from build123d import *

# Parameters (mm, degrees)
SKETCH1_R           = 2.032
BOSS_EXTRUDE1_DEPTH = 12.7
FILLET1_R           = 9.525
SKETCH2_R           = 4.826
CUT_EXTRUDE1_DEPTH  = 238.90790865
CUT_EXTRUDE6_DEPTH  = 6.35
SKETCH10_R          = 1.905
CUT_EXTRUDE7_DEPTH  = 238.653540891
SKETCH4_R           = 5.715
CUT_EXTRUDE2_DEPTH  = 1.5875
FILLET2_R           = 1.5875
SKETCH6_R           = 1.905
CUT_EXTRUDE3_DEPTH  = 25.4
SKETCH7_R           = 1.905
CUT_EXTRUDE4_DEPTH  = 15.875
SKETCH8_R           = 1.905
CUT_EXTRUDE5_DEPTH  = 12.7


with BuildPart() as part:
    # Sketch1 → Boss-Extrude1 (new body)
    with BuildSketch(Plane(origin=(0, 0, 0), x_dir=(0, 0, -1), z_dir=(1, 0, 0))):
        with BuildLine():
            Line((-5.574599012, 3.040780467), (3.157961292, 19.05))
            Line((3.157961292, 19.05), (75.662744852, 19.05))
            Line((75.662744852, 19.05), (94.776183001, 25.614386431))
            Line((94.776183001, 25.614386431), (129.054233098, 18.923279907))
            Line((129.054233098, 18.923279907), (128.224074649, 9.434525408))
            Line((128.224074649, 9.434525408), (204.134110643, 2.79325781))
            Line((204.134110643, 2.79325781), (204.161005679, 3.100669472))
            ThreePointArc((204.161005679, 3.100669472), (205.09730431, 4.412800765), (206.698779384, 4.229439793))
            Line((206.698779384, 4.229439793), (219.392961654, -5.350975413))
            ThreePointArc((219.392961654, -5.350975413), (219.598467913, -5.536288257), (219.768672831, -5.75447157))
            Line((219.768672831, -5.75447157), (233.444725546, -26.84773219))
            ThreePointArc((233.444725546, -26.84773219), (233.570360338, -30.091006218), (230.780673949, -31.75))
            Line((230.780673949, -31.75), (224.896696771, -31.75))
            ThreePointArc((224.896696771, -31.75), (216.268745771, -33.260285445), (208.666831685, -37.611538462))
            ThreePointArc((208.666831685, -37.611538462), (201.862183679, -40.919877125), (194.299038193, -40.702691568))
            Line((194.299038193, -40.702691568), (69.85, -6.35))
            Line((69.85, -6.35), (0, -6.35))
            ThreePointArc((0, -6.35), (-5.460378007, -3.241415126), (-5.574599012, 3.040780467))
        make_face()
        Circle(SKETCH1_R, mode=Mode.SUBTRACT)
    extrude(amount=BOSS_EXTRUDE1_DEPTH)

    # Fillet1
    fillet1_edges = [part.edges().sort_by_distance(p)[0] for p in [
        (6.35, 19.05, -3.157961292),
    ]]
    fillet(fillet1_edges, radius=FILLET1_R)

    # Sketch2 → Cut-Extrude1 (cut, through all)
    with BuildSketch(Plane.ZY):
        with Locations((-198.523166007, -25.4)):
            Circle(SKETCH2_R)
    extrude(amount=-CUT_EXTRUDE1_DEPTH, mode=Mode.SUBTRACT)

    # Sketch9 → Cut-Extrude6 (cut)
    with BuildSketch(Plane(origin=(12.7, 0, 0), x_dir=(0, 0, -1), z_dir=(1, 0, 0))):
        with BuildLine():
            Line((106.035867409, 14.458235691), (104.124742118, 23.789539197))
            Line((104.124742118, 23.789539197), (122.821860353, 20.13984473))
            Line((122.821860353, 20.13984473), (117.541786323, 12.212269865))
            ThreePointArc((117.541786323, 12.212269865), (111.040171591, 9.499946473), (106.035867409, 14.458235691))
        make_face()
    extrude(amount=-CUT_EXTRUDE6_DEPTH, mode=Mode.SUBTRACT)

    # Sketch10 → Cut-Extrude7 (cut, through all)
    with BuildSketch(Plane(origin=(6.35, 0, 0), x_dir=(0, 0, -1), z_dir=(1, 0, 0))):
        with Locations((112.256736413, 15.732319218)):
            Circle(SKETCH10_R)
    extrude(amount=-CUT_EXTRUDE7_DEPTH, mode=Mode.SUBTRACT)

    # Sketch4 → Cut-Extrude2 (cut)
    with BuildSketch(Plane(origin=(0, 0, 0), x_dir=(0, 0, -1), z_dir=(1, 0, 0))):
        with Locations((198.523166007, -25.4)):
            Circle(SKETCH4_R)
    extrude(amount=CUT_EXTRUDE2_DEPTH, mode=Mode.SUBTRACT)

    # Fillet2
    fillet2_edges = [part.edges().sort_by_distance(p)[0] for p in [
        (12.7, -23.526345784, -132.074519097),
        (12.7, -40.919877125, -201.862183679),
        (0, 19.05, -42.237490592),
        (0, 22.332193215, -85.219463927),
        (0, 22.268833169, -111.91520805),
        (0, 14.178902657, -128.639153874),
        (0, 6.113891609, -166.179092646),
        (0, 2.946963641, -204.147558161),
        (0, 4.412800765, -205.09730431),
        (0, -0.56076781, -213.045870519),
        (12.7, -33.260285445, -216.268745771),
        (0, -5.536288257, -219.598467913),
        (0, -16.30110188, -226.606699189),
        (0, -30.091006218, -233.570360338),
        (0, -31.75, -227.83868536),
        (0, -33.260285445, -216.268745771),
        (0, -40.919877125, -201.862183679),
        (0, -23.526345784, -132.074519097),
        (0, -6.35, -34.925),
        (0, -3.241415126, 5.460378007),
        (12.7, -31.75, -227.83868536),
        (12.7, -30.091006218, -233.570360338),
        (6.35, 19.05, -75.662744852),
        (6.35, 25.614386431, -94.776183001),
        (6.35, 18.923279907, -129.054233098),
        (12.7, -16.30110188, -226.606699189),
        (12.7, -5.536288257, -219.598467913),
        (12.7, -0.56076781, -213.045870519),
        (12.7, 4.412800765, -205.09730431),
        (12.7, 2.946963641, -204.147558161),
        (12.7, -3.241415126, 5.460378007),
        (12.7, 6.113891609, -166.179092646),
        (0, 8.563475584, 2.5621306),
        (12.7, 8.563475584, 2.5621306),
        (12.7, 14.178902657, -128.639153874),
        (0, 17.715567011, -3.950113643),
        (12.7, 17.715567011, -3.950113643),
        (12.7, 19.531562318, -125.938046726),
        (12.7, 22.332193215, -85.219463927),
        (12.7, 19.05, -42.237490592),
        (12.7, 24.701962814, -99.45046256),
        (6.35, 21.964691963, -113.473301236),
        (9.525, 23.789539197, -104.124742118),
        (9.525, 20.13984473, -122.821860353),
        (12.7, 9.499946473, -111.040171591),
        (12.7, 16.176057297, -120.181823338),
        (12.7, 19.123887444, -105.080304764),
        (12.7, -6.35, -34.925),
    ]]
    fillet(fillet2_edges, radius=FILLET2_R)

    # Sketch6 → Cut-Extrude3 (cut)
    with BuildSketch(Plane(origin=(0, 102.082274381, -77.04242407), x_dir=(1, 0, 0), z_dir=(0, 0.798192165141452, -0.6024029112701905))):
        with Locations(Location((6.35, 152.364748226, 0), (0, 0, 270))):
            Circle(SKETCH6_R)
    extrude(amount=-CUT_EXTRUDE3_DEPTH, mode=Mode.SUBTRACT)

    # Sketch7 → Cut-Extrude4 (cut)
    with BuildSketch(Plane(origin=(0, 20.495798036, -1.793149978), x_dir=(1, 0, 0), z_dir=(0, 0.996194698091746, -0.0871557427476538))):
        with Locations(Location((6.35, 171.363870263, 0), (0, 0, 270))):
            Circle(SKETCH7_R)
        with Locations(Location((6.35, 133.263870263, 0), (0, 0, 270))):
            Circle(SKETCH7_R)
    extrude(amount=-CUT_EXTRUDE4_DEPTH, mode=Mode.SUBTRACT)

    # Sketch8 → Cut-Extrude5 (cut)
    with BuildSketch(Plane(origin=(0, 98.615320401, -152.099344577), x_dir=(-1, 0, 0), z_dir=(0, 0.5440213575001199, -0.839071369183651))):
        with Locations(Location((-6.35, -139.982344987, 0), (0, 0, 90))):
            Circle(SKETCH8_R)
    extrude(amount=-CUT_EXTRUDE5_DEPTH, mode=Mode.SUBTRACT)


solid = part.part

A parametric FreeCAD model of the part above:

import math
import FreeCAD as App
import Part
import Sketcher
from FreeCAD import Vector
Q = App.Units.Quantity


def edges_at(feature, points):
    """Names of the edges that pass closest to the given points."""
    edges = feature.Shape.Edges
    near = lambda p: min(range(len(edges)), key=lambda i: edges[i].distToShape(Part.Vertex(*p))[0])
    return sorted({f"Edge{near(p) + 1}" for p in points})

doc = App.newDocument("Part")
body = doc.addObject("PartDesign::Body", "Body")

# Sketch on YZ plane
sketch1 = body.newObject("Sketcher::SketchObject", "Sketch")
sketch1.AttachmentSupport = (doc.getObject("YZ_Plane"), [""])
sketch1.MapMode = "FlatFace"
sketch1.addGeometry([
    Part.LineSegment(Vector(19.05, -3.16, 0), Vector(3.04, 5.57, 0)),  # 0
    Part.ArcOfCircle(Part.Circle(Vector(0, 0, 0), Vector(0, 0, 1), 6.35), math.radians(61), math.radians(180)),  # 1
    Part.LineSegment(Vector(-6.35, 0, 0), Vector(-6.35, -69.85, 0)),  # 2
    Part.LineSegment(Vector(-6.35, -69.85, 0), Vector(-40.7, -194.3, 0)),  # 3
    Part.ArcOfCircle(Part.Circle(Vector(-25.4, -198.52, 0), Vector(0, 0, 1), 15.88), math.radians(165), math.radians(220)),  # 4
    Part.ArcOfCircle(Part.Circle(Vector(-57.15, -224.9, 0), Vector(0, 0, 1), 25.4), math.radians(0), math.radians(40)),  # 5
    Part.LineSegment(Vector(-31.75, -224.9, 0), Vector(-31.75, -230.78, 0)),  # 6
    Part.ArcOfCircle(Part.Circle(Vector(-28.57, -230.78, 0), Vector(0, 0, 1), 3.17), math.radians(180), math.radians(303)),  # 7
    Part.LineSegment(Vector(-26.85, -233.44, 0), Vector(-5.75, -219.77, 0)),  # 8
    Part.ArcOfCircle(Part.Circle(Vector(-6.62, -218.44, 0), Vector(0, 0, 1), 1.59), math.radians(-57), math.radians(-37)),  # 9
    Part.LineSegment(Vector(-5.35, -219.39, 0), Vector(4.23, -206.7, 0)),  # 10
    Part.ArcOfCircle(Part.Circle(Vector(2.96, -205.74, 0), Vector(0, 0, 1), 1.59), math.radians(-37), math.radians(85)),  # 11
    Part.LineSegment(Vector(3.1, -204.16, 0), Vector(2.79, -204.13, 0)),  # 12
    Part.LineSegment(Vector(2.79, -204.13, 0), Vector(9.43, -128.22, 0)),  # 13
    Part.LineSegment(Vector(9.43, -128.22, 0), Vector(18.92, -129.05, 0)),  # 14
    Part.LineSegment(Vector(18.92, -129.05, 0), Vector(25.61, -94.78, 0)),  # 15
    Part.LineSegment(Vector(25.61, -94.78, 0), Vector(19.05, -75.66, 0)),  # 16
    Part.LineSegment(Vector(19.05, -75.66, 0), Vector(19.05, -3.16, 0)),  # 17
    Part.Circle(Vector(0, 0, 0), Vector(0, 0, 1), 2.03),  # 18
], False)
sketch1.addConstraint([
    Sketcher.Constraint("Tangent", 0, 2, 1, 1),
    Sketcher.Constraint("Tangent", 1, 2, 2, 1),
    Sketcher.Constraint("Coincident", 2, 2, 3, 1),
    Sketcher.Constraint("Tangent", 3, 2, 4, 1),
    Sketcher.Constraint("Tangent", 4, 2, 5, 2),
    Sketcher.Constraint("Tangent", 5, 1, 6, 1),
    Sketcher.Constraint("Tangent", 6, 2, 7, 1),
    Sketcher.Constraint("Tangent", 7, 2, 8, 1),
    Sketcher.Constraint("Tangent", 8, 2, 9, 1),
    Sketcher.Constraint("Tangent", 9, 2, 10, 1),
    Sketcher.Constraint("Tangent", 10, 2, 11, 1),
    Sketcher.Constraint("Tangent", 11, 2, 12, 1),
    Sketcher.Constraint("Coincident", 12, 2, 13, 1),
    Sketcher.Constraint("Coincident", 13, 2, 14, 1),
    Sketcher.Constraint("Coincident", 14, 2, 15, 1),
    Sketcher.Constraint("Coincident", 15, 2, 16, 1),
    Sketcher.Constraint("Coincident", 16, 2, 17, 1),
    Sketcher.Constraint("Coincident", 17, 2, 0, 1),
    Sketcher.Constraint("Vertical", 2),
    Sketcher.Constraint("Vertical", 6),
    Sketcher.Constraint("Vertical", 17),
    Sketcher.Constraint("Coincident", 1, 3, -1, 1),
    Sketcher.Constraint("Coincident", 18, 3, -1, 1),
    Sketcher.Constraint("Equal", 9, 11),
    Sketcher.Constraint("Perpendicular", 12, 13),
    Sketcher.Constraint("Perpendicular", 13, 14),
    Sketcher.Constraint("Radius", 5, Q("1 in")),
    Sketcher.Constraint("Diameter", 18, Q("0.16 in")),
    Sketcher.Constraint("Radius", 1, Q("0.25 in")),
    Sketcher.Constraint("Distance", 13, Q("3 in")),
    Sketcher.Constraint("DistanceX", 4, 3, -1, 1, Q("1 in")),
    Sketcher.Constraint("Angle", 12, Q("175 deg")),
    Sketcher.Constraint("Radius", 4, Q("0.625 in")),
    Sketcher.Constraint("Radius", 7, Q("0.125 in")),
    Sketcher.Constraint("Radius", 9, Q("0.0625 in")),
    Sketcher.Constraint("DistanceX", 2, 2, 16, 2, Q("1 in")),
    Sketcher.Constraint("DistanceY", 2, 2, 2, 1, Q("2.75 in")),
    Sketcher.Constraint("DistanceX", 5, 3, -1, 1, Q("2.25 in")),
    Sketcher.Constraint("Distance", 14, Q("0.375 in")),
    Sketcher.Constraint("Distance", 15, Q("1.375 in")),
    Sketcher.Constraint("DistanceY", -1, 1, 0, 2, 5.574599),
    Sketcher.Constraint("DistanceY", 11, 3, 4, 3, 7.219299),
    Sketcher.Constraint("DistanceX", 3, 2, 11, 3, 43.665001),
    Sketcher.Constraint("DistanceY", 7, 3, 8, 2, 11.012001),
    Sketcher.Constraint("DistanceY", 6, 2, 6, 1, 5.883977),
    Sketcher.Constraint("DistanceY", 17, 1, 17, 2, 72.504784),
    Sketcher.Constraint("DistanceY", 3, 2, -1, 1, 194.299038),
    Sketcher.Constraint("DistanceX", 8, 2, -1, 1, 5.754472),
    Sketcher.Constraint("DistanceY", 12, 2, -1, 1, 204.134111),
    Sketcher.Constraint("DistanceY", 14, 2, 15, 2, 34.27805),
])
pad1 = body.newObject("PartDesign::Pad", "Pad")
pad1.Profile = sketch1
pad1.Length = Q("0.5 in")
doc.recompute()

fillet = body.newObject("PartDesign::Fillet", "Fillet")
fillet.Base = (pad1, edges_at(pad1, [(6.35, 19.05, -3.158)]))
fillet.Radius = Q("0.375 in")

# Sketch on YZ plane
sketch2 = body.newObject("Sketcher::SketchObject", "Sketch001")
sketch2.AttachmentSupport = (doc.getObject("YZ_Plane"), [""])
sketch2.MapMode = "FlatFace"
sketch2.addGeometry(Part.Circle(Vector(-25.4, -198.5, 0), Vector(0, 0, 1), 4.8), False)
sketch2.addConstraint([
    Sketcher.Constraint("Diameter", 0, Q("0.38 in")),
    Sketcher.Constraint("DistanceX", 0, 3, -1, 1, Q("1 in")),
    Sketcher.Constraint("DistanceY", 0, 3, -1, 1, 198.523166),
])
pocket1 = body.newObject("PartDesign::Pocket", "Pocket")
pocket1.Profile = sketch2
pocket1.Type = "ThroughAll"
pocket1.Reversed = True

# Sketch on YZ plane
sketch3 = body.newObject("Sketcher::SketchObject", "Sketch002")
sketch3.AttachmentSupport = (doc.getObject("YZ_Plane"), [""])
sketch3.MapMode = "FlatFace"
sketch3.AttachmentOffset = App.Placement(Vector(0, 0, 0.5 * 25.4), App.Rotation())
sketch3.addGeometry([
    Part.LineSegment(Vector(24, -104, 0), Vector(14, -106, 0)),
    Part.ArcOfCircle(Part.Circle(Vector(16, -112, 0), Vector(0, 0, 1), 6), math.radians(102), math.radians(236)),
    Part.LineSegment(Vector(12, -118, 0), Vector(20, -123, 0)),
    Part.LineSegment(Vector(20, -123, 0), Vector(24, -104, 0)),
], False)
sketch3.addConstraint([
    Sketcher.Constraint("Tangent", 0, 2, 1, 1),
    Sketcher.Constraint("Tangent", 1, 2, 2, 1),
    Sketcher.Constraint("Coincident", 2, 2, 3, 1),
    Sketcher.Constraint("Coincident", 3, 2, 0, 1),
    Sketcher.Constraint("Equal", 0, 2),
    Sketcher.Constraint("Radius", 1, Q("0.25 in")),
    Sketcher.Constraint("Distance", 3, Q("0.75 in")),
    Sketcher.Constraint("Distance", 0, Q("0.375 in")),
    Sketcher.Constraint("DistanceX", -1, 1, 1, 3, 15.732319),
    Sketcher.Constraint("DistanceX", -1, 1, 1, 2, 12.21227),
    Sketcher.Constraint("DistanceY", 2, 2, -1, 1, 122.82186),
])
pocket2 = body.newObject("PartDesign::Pocket", "Pocket001")
pocket2.Profile = sketch3
pocket2.Length = Q("0.25 in")

# Sketch on YZ plane
sketch4 = body.newObject("Sketcher::SketchObject", "Sketch003")
sketch4.AttachmentSupport = (doc.getObject("YZ_Plane"), [""])
sketch4.MapMode = "FlatFace"
sketch4.AttachmentOffset = App.Placement(Vector(0, 0, 0.25 * 25.4), App.Rotation())
sketch4.addGeometry(Part.Circle(Vector(15.7, -112.3, 0), Vector(0, 0, 1), 1.9), False)
sketch4.addConstraint([
    Sketcher.Constraint("Diameter", 0, Q("0.15 in")),
    Sketcher.Constraint("DistanceX", -1, 1, 0, 3, 15.732319),
    Sketcher.Constraint("DistanceY", 0, 3, -1, 1, 112.256736),
])
pocket3 = body.newObject("PartDesign::Pocket", "Pocket002")
pocket3.Profile = sketch4
pocket3.Type = "ThroughAll"

# Sketch on YZ plane
sketch5 = body.newObject("Sketcher::SketchObject", "Sketch004")
sketch5.AttachmentSupport = (doc.getObject("YZ_Plane"), [""])
sketch5.MapMode = "FlatFace"
sketch5.addGeometry(Part.Circle(Vector(-25, -199, 0), Vector(0, 0, 1), 6), False)
sketch5.addConstraint([
    Sketcher.Constraint("Diameter", 0, Q("0.45 in")),
    Sketcher.Constraint("DistanceX", 0, 3, -1, 1, Q("1 in")),
    Sketcher.Constraint("DistanceY", 0, 3, -1, 1, 198.523166),
])
pocket4 = body.newObject("PartDesign::Pocket", "Pocket003")
pocket4.Profile = sketch5
pocket4.Length = Q("0.0625 in")
pocket4.Reversed = True
doc.recompute()

fillet2 = body.newObject("PartDesign::Fillet", "Fillet001")
fillet2.Base = (pocket4, edges_at(pocket4, [
    (12.7, -23.526, -132.075),
    (12.7, -40.92, -201.862),
    (0, 19.05, -42.237),
    (0, 22.332, -85.219),
    (0, 22.269, -111.915),
    (0, 14.179, -128.639),
    (0, 6.114, -166.179),
    (0, 2.947, -204.148),
    (0, 4.413, -205.097),
    (0, -0.561, -213.046),
    (12.7, -33.26, -216.269),
    (0, -5.536, -219.598),
    (0, -16.301, -226.607),
    (0, -30.091, -233.57),
    (0, -31.75, -227.839),
    (0, -33.26, -216.269),
    (0, -40.92, -201.862),
    (0, -23.526, -132.075),
    (0, -6.35, -34.925),
    (0, -3.241, 5.46),
    (12.7, -31.75, -227.839),
    (12.7, -30.091, -233.57),
    (6.35, 19.05, -75.663),
    (6.35, 25.614, -94.776),
    (6.35, 18.923, -129.054),
    (12.7, -16.301, -226.607),
    (12.7, -5.536, -219.598),
    (12.7, -0.561, -213.046),
    (12.7, 4.413, -205.097),
    (12.7, 2.947, -204.148),
    (12.7, -3.241, 5.46),
    (12.7, 6.114, -166.179),
    (0, 8.563, 2.562),
    (12.7, 8.563, 2.562),
    (12.7, 14.179, -128.639),
    (0, 17.716, -3.95),
    (12.7, 17.716, -3.95),
    (12.7, 19.532, -125.938),
    (12.7, 22.332, -85.219),
    (12.7, 19.05, -42.237),
    (12.7, 24.702, -99.45),
    (6.35, 21.965, -113.473),
    (9.525, 23.79, -104.125),
    (9.525, 20.14, -122.822),
    (12.7, 9.5, -111.04),
    (12.7, 16.176, -120.182),
    (12.7, 19.124, -105.08),
    (12.7, -6.35, -34.925),
]))
fillet2.Radius = Q("0.0625 in")

# Sketch on an angled plane
sketch6 = body.newObject("Sketcher::SketchObject", "Sketch005")
sketch6.Placement = App.Placement(Vector(0, 102.082274, -77.042424), App.Rotation(Vector(1, 0, 0), Vector(0, -0.602402911, -0.798192165), Vector(0, 0.798192165, -0.602402911), "ZXY"))
sketch6.addGeometry(Part.Circle(Vector(6.3, 152.4, 0), Vector(0, 0, 1), 1.9), False)
sketch6.addConstraint([
    Sketcher.Constraint("Diameter", 0, Q("0.15 in")),
    Sketcher.Constraint("DistanceX", -1, 1, 0, 3, Q("0.25 in")),
    Sketcher.Constraint("DistanceY", -1, 1, 0, 3, 152.364748),
])
pocket5 = body.newObject("PartDesign::Pocket", "Pocket004")
pocket5.Profile = sketch6
pocket5.Length = Q("1 in")

# Sketch on an angled plane
sketch7 = body.newObject("Sketcher::SketchObject", "Sketch006")
sketch7.Placement = App.Placement(Vector(0, 20.495798, -1.79315), App.Rotation(Vector(1, 0, 0), Vector(0, -0.087155743, -0.996194698), Vector(0, 0.996194698, -0.087155743), "ZXY"))
sketch7.addGeometry([
    Part.Circle(Vector(6.3, 171.4, 0), Vector(0, 0, 1), 1.9),
    Part.Circle(Vector(6.3, 133.3, 0), Vector(0, 0, 1), 1.9),
], False)
sketch7.addConstraint([
    Sketcher.Constraint("Equal", 0, 1),
    Sketcher.Constraint("Vertical", 0, 3, 1, 3),
    Sketcher.Constraint("Diameter", 0, Q("0.15 in")),
    Sketcher.Constraint("DistanceY", 1, 3, 0, 3, Q("1.5 in")),
    Sketcher.Constraint("DistanceX", -1, 1, 0, 3, Q("0.25 in")),
    Sketcher.Constraint("DistanceY", -1, 1, 0, 3, 171.36387),
])
pocket6 = body.newObject("PartDesign::Pocket", "Pocket005")
pocket6.Profile = sketch7
pocket6.Length = Q("0.625 in")

# Sketch on an angled plane
sketch8 = body.newObject("Sketcher::SketchObject", "Sketch007")
sketch8.Placement = App.Placement(Vector(0, 98.61532, -152.099345), App.Rotation(Vector(-1, 0, 0), Vector(0, 0.839071369, 0.544021358), Vector(0, 0.544021358, -0.839071369), "ZXY"))
sketch8.addGeometry(Part.Circle(Vector(-6.3, -140, 0), Vector(0, 0, 1), 1.9), False)
sketch8.addConstraint([
    Sketcher.Constraint("Diameter", 0, Q("0.15 in")),
    Sketcher.Constraint("DistanceX", 0, 3, -1, 1, Q("0.25 in")),
    Sketcher.Constraint("DistanceY", 0, 3, -1, 1, 139.982345),
])
pocket7 = body.newObject("PartDesign::Pocket", "Pocket006")
pocket7.Profile = sketch8
pocket7.Length = Q("0.5 in")

doc.recompute()
